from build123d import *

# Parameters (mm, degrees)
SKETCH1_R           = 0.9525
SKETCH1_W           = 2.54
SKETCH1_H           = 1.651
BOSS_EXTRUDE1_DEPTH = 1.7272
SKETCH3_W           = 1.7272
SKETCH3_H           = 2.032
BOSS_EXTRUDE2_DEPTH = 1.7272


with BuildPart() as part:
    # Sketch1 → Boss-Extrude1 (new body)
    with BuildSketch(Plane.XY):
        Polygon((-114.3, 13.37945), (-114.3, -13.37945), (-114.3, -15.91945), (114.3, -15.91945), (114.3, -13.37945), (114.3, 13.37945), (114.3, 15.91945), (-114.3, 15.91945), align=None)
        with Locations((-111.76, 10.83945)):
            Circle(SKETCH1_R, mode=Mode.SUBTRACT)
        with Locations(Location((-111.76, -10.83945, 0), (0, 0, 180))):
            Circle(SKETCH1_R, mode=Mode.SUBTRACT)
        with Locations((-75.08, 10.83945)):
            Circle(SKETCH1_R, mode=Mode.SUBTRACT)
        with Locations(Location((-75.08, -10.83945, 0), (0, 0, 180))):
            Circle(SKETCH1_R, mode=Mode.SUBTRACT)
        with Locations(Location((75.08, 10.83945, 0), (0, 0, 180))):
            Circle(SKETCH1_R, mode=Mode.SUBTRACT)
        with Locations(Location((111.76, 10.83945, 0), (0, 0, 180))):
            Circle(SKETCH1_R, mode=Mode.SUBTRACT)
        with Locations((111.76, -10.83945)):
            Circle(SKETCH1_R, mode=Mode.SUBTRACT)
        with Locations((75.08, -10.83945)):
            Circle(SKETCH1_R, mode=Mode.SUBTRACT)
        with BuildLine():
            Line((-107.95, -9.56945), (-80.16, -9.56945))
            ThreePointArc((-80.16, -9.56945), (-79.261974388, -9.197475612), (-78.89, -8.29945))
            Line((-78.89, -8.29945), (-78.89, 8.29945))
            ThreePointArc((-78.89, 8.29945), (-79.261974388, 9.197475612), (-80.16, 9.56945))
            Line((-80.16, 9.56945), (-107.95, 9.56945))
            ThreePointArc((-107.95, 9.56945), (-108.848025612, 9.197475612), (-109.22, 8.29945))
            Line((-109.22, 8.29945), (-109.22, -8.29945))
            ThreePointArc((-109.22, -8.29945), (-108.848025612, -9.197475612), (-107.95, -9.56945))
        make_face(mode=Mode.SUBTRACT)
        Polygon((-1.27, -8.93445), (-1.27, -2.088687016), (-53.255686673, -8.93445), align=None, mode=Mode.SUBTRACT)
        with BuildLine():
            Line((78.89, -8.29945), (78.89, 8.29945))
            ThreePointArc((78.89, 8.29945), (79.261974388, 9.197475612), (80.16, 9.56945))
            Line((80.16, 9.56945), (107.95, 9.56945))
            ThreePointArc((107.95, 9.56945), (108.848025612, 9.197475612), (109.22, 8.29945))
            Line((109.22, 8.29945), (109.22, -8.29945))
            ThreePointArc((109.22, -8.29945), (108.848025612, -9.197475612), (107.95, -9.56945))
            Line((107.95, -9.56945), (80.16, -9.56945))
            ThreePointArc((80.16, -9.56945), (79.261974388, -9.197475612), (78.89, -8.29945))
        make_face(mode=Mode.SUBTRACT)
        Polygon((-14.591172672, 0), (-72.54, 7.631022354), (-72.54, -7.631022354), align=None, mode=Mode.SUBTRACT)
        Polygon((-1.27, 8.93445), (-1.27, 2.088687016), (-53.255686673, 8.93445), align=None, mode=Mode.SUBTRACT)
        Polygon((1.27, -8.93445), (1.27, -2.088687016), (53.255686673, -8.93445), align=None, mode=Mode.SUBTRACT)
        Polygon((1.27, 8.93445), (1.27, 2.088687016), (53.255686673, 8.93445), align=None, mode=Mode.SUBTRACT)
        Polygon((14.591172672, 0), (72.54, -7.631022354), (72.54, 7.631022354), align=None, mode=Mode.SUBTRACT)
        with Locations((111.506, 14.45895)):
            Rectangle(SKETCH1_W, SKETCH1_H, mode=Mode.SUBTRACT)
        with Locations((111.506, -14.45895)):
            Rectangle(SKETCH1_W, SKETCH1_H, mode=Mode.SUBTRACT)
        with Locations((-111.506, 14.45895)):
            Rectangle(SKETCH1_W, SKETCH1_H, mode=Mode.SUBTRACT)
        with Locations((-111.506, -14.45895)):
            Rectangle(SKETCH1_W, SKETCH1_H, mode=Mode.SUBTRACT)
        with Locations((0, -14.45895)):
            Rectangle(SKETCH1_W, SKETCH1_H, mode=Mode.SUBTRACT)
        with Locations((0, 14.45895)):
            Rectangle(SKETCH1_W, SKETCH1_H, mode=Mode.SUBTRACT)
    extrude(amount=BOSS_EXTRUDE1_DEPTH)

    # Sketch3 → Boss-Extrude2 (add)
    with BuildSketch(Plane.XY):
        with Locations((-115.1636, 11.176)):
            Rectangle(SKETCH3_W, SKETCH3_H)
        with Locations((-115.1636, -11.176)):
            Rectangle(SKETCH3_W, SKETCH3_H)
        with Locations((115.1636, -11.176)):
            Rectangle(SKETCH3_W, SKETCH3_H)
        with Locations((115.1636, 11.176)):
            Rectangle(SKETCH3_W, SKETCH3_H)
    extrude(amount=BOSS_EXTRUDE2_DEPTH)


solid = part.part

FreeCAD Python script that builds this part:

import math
import FreeCAD as App
import Part
import Sketcher

V = App.Vector
Q = App.Units.Quantity

doc = App.newDocument("Part")
params = doc.addObject("Spreadsheet::Sheet", "Params")
for row, (alias, value) in enumerate([
    ("sketch1_width", "9 in"),
    ("sketch1_radius", "0.05 in"),
    ("sketch1_diameter", "0.075 in"),
    ("sketch1_width2", "0.1 in"),
    ("sketch1_height", "0.065 in"),
    ("pad1_length", "0.068 in"),
    ("sketch2_height", "0.08 in"),
    ("sketch2_width", "0.068 in"),
    ("pad2_length", "0.068 in"),
], start=1):
    params.set(f"A{row}", alias)
    params.set(f"B{row}", "=" + value)
    params.setAlias(f"B{row}", alias)

body = doc.addObject("PartDesign::Body", "Body")

sketch1 = doc.addObject("Sketcher::SketchObject", "Sketch")
body.addObject(sketch1)
sketch1.AttachmentSupport = (doc.XY_Plane, [""])
sketch1.MapMode = "FlatFace"
sketch1.addGeometry([
    Part.LineSegment(V(-114.3, -15.9, 0), V(114.3, -15.9, 0)),
    Part.LineSegment(V(114.3, -15.9, 0), V(114.3, 15.9, 0)),
    Part.LineSegment(V(114.3, 15.9, 0), V(-114.3, 15.9, 0)),
    Part.LineSegment(V(-114.3, 15.9, 0), V(-114.3, -15.9, 0)),
    Part.LineSegment(V(-110.2, -15.3, 0), V(-112.8, -15.3, 0)),
    Part.LineSegment(V(-112.8, -15.3, 0), V(-112.8, -13.6, 0)),
    Part.LineSegment(V(-112.8, -13.6, 0), V(-110.2, -13.6, 0)),
    Part.LineSegment(V(-110.2, -13.6, 0), V(-110.2, -15.3, 0)),
    Part.Circle(V(-111.8, -10.8, 0), V(0, 0, 1), 1),
    Part.Circle(V(-75.1, -10.8, 0), V(0, 0, 1), 1),
    Part.LineSegment(V(-1.3, -2.1, 0), V(-1.3, -8.9, 0)),
    Part.LineSegment(V(-1.3, -8.9, 0), V(-53.3, -8.9, 0)),
    Part.LineSegment(V(-53.3, -8.9, 0), V(-1.3, -2.1, 0)),
    Part.LineSegment(V(1.3, -15.3, 0), V(-1.3, -15.3, 0)),
    Part.LineSegment(V(-1.3, -15.3, 0), V(-1.3, -13.6, 0)),
    Part.LineSegment(V(-1.3, -13.6, 0), V(1.3, -13.6, 0)),
    Part.LineSegment(V(1.3, -13.6, 0), V(1.3, -15.3, 0)),
    Part.LineSegment(V(112.8, -15.3, 0), V(110.2, -15.3, 0)),
    Part.LineSegment(V(110.2, -15.3, 0), V(110.2, -13.6, 0)),
    Part.LineSegment(V(110.2, -13.6, 0), V(112.8, -13.6, 0)),
    Part.LineSegment(V(112.8, -13.6, 0), V(112.8, -15.3, 0)),
    Part.Circle(V(75.1, -10.8, 0), V(0, 0, 1), 1),
    Part.Circle(V(111.8, -10.8, 0), V(0, 0, 1), 1),
    Part.LineSegment(V(53.3, -8.9, 0), V(1.3, -8.9, 0)),
    Part.LineSegment(V(1.3, -8.9, 0), V(1.3, -2.1, 0)),
    Part.LineSegment(V(1.3, -2.1, 0), V(53.3, -8.9, 0)),
    Part.LineSegment(V(-80.2, -9.6, 0), V(-108, -9.6, 0)),
    Part.ArcOfCircle(Part.Circle(V(-108, -8.3, 0), V(0, 0, 1), 1.3), math.radians(180), math.radians(270)),
    Part.LineSegment(V(-109.2, -8.3, 0), V(-109.2, 8.3, 0)),
    Part.ArcOfCircle(Part.Circle(V(-108, 8.3, 0), V(0, 0, 1), 1.3), math.radians(90), math.radians(180)),
    Part.LineSegment(V(-108, 9.6, 0), V(-80.2, 9.6, 0)),
    Part.ArcOfCircle(Part.Circle(V(-80.2, 8.3, 0), V(0, 0, 1), 1.3), math.radians(0), math.radians(90)),
    Part.LineSegment(V(-78.9, 8.3, 0), V(-78.9, -8.3, 0)),
    Part.ArcOfCircle(Part.Circle(V(-80.2, -8.3, 0), V(0, 0, 1), 1.3), math.radians(-90), math.radians(0)),
    Part.LineSegment(V(-72.5, 7.6, 0), V(-14.6, 0, 0)),
    Part.LineSegment(V(-14.6, 0, 0), V(-72.5, -7.6, 0)),
    Part.LineSegment(V(-72.5, -7.6, 0), V(-72.5, 7.6, 0)),
    Part.LineSegment(V(-53.3, 8.9, 0), V(-1.3, 8.9, 0)),
    Part.LineSegment(V(-1.3, 8.9, 0), V(-1.3, 2.1, 0)),
    Part.LineSegment(V(-1.3, 2.1, 0), V(-53.3, 8.9, 0)),
    Part.Circle(V(-111.8, 10.8, 0), V(0, 0, 1), 1),
    Part.Circle(V(-75.1, 10.8, 0), V(0, 0, 1), 1),
    Part.LineSegment(V(-110.2, 13.6, 0), V(-112.8, 13.6, 0)),
    Part.LineSegment(V(-112.8, 13.6, 0), V(-112.8, 15.3, 0)),
    Part.LineSegment(V(-112.8, 15.3, 0), V(-110.2, 15.3, 0)),
    Part.LineSegment(V(-110.2, 15.3, 0), V(-110.2, 13.6, 0)),
    Part.LineSegment(V(72.5, -7.6, 0), V(14.6, 0, 0)),
    Part.LineSegment(V(14.6, 0, 0), V(72.5, 7.6, 0)),
    Part.LineSegment(V(72.5, 7.6, 0), V(72.5, -7.6, 0)),
    Part.LineSegment(V(1.3, 2.1, 0), V(1.3, 8.9, 0)),
    Part.LineSegment(V(1.3, 8.9, 0), V(53.3, 8.9, 0)),
    Part.LineSegment(V(53.3, 8.9, 0), V(1.3, 2.1, 0)),
    Part.ArcOfCircle(Part.Circle(V(80.2, -8.3, 0), V(0, 0, 1), 1.3), math.radians(180), math.radians(270)),
    Part.LineSegment(V(78.9, -8.3, 0), V(78.9, 8.3, 0)),
    Part.ArcOfCircle(Part.Circle(V(80.2, 8.3, 0), V(0, 0, 1), 1.3), math.radians(90), math.radians(180)),
    Part.LineSegment(V(80.2, 9.6, 0), V(108, 9.6, 0)),
    Part.ArcOfCircle(Part.Circle(V(108, 8.3, 0), V(0, 0, 1), 1.3), math.radians(0), math.radians(90)),
    Part.LineSegment(V(109.2, 8.3, 0), V(109.2, -8.3, 0)),
    Part.ArcOfCircle(Part.Circle(V(108, -8.3, 0), V(0, 0, 1), 1.3), math.radians(-90), math.radians(0)),
    Part.LineSegment(V(108, -9.6, 0), V(80.2, -9.6, 0)),
    Part.LineSegment(V(1.3, 13.6, 0), V(-1.3, 13.6, 0)),
    Part.LineSegment(V(-1.3, 13.6, 0), V(-1.3, 15.3, 0)),
    Part.LineSegment(V(-1.3, 15.3, 0), V(1.3, 15.3, 0)),
    Part.LineSegment(V(1.3, 15.3, 0), V(1.3, 13.6, 0)),
    Part.Circle(V(75.1, 10.8, 0), V(0, 0, 1), 1),
    Part.Circle(V(111.8, 10.8, 0), V(0, 0, 1), 1),
    Part.LineSegment(V(112.8, 13.6, 0), V(110.2, 13.6, 0)),
    Part.LineSegment(V(110.2, 13.6, 0), V(110.2, 15.3, 0)),
    Part.LineSegment(V(110.2, 15.3, 0), V(112.8, 15.3, 0)),
    Part.LineSegment(V(112.8, 15.3, 0), V(112.8, 13.6, 0)),
], False)
sketch1.addConstraint([
    Sketcher.Constraint("Coincident", 0, 2, 1, 1),
    Sketcher.Constraint("Coincident", 1, 2, 2, 1),
    Sketcher.Constraint("Coincident", 2, 2, 3, 1),
    Sketcher.Constraint("Coincident", 3, 2, 0, 1),
    Sketcher.Constraint("Coincident", 4, 2, 5, 1),
    Sketcher.Constraint("Coincident", 5, 2, 6, 1),
    Sketcher.Constraint("Coincident", 6, 2, 7, 1),
    Sketcher.Constraint("Coincident", 7, 2, 4, 1),
    Sketcher.Constraint("Coincident", 10, 2, 11, 1),
    Sketcher.Constraint("Coincident", 11, 2, 12, 1),
    Sketcher.Constraint("Coincident", 12, 2, 10, 1),
    Sketcher.Constraint("Coincident", 13, 2, 14, 1),
    Sketcher.Constraint("Coincident", 14, 2, 15, 1),
    Sketcher.Constraint("Coincident", 15, 2, 16, 1),
    Sketcher.Constraint("Coincident", 16, 2, 13, 1),
    Sketcher.Constraint("Coincident", 17, 2, 18, 1),
    Sketcher.Constraint("Coincident", 18, 2, 19, 1),
    Sketcher.Constraint("Coincident", 19, 2, 20, 1),
    Sketcher.Constraint("Coincident", 20, 2, 17, 1),
    Sketcher.Constraint("Coincident", 23, 2, 24, 1),
    Sketcher.Constraint("Coincident", 24, 2, 25, 1),
    Sketcher.Constraint("Coincident", 25, 2, 23, 1),
    Sketcher.Constraint("Tangent", 26, 2, 27, 2),
    Sketcher.Constraint("Tangent", 27, 1, 28, 1),
    Sketcher.Constraint("Tangent", 28, 2, 29, 2),
    Sketcher.Constraint("Tangent", 29, 1, 30, 1),
    Sketcher.Constraint("Tangent", 30, 2, 31, 2),
    Sketcher.Constraint("Tangent", 31, 1, 32, 1),
    Sketcher.Constraint("Tangent", 32, 2, 33, 2),
    Sketcher.Constraint("Tangent", 33, 1, 26, 1),
    Sketcher.Constraint("Coincident", 34, 2, 35, 1),
    Sketcher.Constraint("Coincident", 35, 2, 36, 1),
    Sketcher.Constraint("Coincident", 36, 2, 34, 1),
    Sketcher.Constraint("Coincident", 37, 2, 38, 1),
    Sketcher.Constraint("Coincident", 38, 2, 39, 1),
    Sketcher.Constraint("Coincident", 39, 2, 37, 1),
    Sketcher.Constraint("Coincident", 42, 2, 43, 1),
    Sketcher.Constraint("Coincident", 43, 2, 44, 1),
    Sketcher.Constraint("Coincident", 44, 2, 45, 1),
    Sketcher.Constraint("Coincident", 45, 2, 42, 1),
    Sketcher.Constraint("Coincident", 46, 2, 47, 1),
    Sketcher.Constraint("Coincident", 47, 2, 48, 1),
    Sketcher.Constraint("Coincident", 48, 2, 46, 1),
    Sketcher.Constraint("Coincident", 49, 2, 50, 1),
    Sketcher.Constraint("Coincident", 50, 2, 51, 1),
    Sketcher.Constraint("Coincident", 51, 2, 49, 1),
    Sketcher.Constraint("Tangent", 52, 1, 53, 1),
    Sketcher.Constraint("Tangent", 53, 2, 54, 2),
    Sketcher.Constraint("Tangent", 54, 1, 55, 1),
    Sketcher.Constraint("Tangent", 55, 2, 56, 2),
    Sketcher.Constraint("Tangent", 56, 1, 57, 1),
    Sketcher.Constraint("Tangent", 57, 2, 58, 2),
    Sketcher.Constraint("Tangent", 58, 1, 59, 1),
    Sketcher.Constraint("Tangent", 59, 2, 52, 2),
    Sketcher.Constraint("Coincident", 60, 2, 61, 1),
    Sketcher.Constraint("Coincident", 61, 2, 62, 1),
    Sketcher.Constraint("Coincident", 62, 2, 63, 1),
    Sketcher.Constraint("Coincident", 63, 2, 60, 1),
    Sketcher.Constraint("Coincident", 66, 2, 67, 1),
    Sketcher.Constraint("Coincident", 67, 2, 68, 1),
    Sketcher.Constraint("Coincident", 68, 2, 69, 1),
    Sketcher.Constraint("Coincident", 69, 2, 66, 1),
    Sketcher.Constraint("Horizontal", 0),
    Sketcher.Constraint("Vertical", 1),
    Sketcher.Constraint("Horizontal", 2),
    Sketcher.Constraint("Vertical", 3),
    Sketcher.Constraint("Horizontal", 4),
    Sketcher.Constraint("Vertical", 5),
    Sketcher.Constraint("Horizontal", 6),
    Sketcher.Constraint("Vertical", 7),
    Sketcher.Constraint("Vertical", 10),
    Sketcher.Constraint("Horizontal", 11),
    Sketcher.Constraint("Horizontal", 13),
    Sketcher.Constraint("Vertical", 14),
    Sketcher.Constraint("Horizontal", 15),
    Sketcher.Constraint("Vertical", 16),
    Sketcher.Constraint("Horizontal", 17),
    Sketcher.Constraint("Vertical", 18),
    Sketcher.Constraint("Horizontal", 19),
    Sketcher.Constraint("Vertical", 20),
    Sketcher.Constraint("Horizontal", 23),
    Sketcher.Constraint("Vertical", 24),
    Sketcher.Constraint("Horizontal", 26),
    Sketcher.Constraint("Vertical", 28),
    Sketcher.Constraint("Horizontal", 30),
    Sketcher.Constraint("Vertical", 32),
    Sketcher.Constraint("Vertical", 36),
    Sketcher.Constraint("Horizontal", 37),
    Sketcher.Constraint("Vertical", 38),
    Sketcher.Constraint("Horizontal", 42),
    Sketcher.Constraint("Vertical", 43),
    Sketcher.Constraint("Horizontal", 44),
    Sketcher.Constraint("Vertical", 45),
    Sketcher.Constraint("Vertical", 48),
    Sketcher.Constraint("Vertical", 49),
    Sketcher.Constraint("Horizontal", 50),
    Sketcher.Constraint("Vertical", 53),
    Sketcher.Constraint("Horizontal", 55),
    Sketcher.Constraint("Vertical", 57),
    Sketcher.Constraint("Horizontal", 59),
    Sketcher.Constraint("Horizontal", 60),
    Sketcher.Constraint("Vertical", 61),
    Sketcher.Constraint("Horizontal", 62),
    Sketcher.Constraint("Vertical", 63),
    Sketcher.Constraint("Horizontal", 66),
    Sketcher.Constraint("Vertical", 67),
    Sketcher.Constraint("Horizontal", 68),
    Sketcher.Constraint("Vertical", 69),
    Sketcher.Constraint("Equal", 8, 9),
    Sketcher.Constraint("Equal", 9, 21),
    Sketcher.Constraint("Equal", 21, 22),
    Sketcher.Constraint("Equal", 27, 29),
    Sketcher.Constraint("Equal", 29, 31),
    Sketcher.Constraint("Equal", 31, 33),
    Sketcher.Constraint("Equal", 22, 40),
    Sketcher.Constraint("Equal", 40, 41),
    Sketcher.Constraint("Equal", 33, 52),
    Sketcher.Constraint("Equal", 52, 54),
    Sketcher.Constraint("Equal", 54, 56),
    Sketcher.Constraint("Equal", 56, 58),
    Sketcher.Constraint("Equal", 41, 64),
    Sketcher.Constraint("Equal", 64, 65),
    Sketcher.Constraint("Symmetric", 22, 3, 40, 3, -1, 1),
    Sketcher.Constraint("Symmetric", 21, 3, 41, 3, -1, 1),
    Sketcher.Constraint("Symmetric", 31, 3, 52, 3, -1, 1),
    Sketcher.Constraint("Symmetric", 27, 3, 56, 3, -1, 1),
    Sketcher.Constraint("Symmetric", 9, 3, 64, 3, -1, 1),
    Sketcher.Constraint("Symmetric", 8, 3, 65, 3, -1, 1),
    Sketcher.Constraint("Symmetric", 0, 2, 2, 2, -1, 1),
    Sketcher.Constraint("Symmetric", 23, 2, 37, 2, -1, 1),
    Sketcher.Constraint("Symmetric", 19, 2, 42, 2, -1, 1),
    Sketcher.Constraint("Symmetric", 17, 2, 44, 2, -1, 1),
    Sketcher.Constraint("Symmetric", 34, 2, 46, 2, -1, 1),
    Sketcher.Constraint("Symmetric", 35, 2, 47, 2, -1, 1),
    Sketcher.Constraint("Symmetric", 10, 2, 49, 2, -1, 1),
    Sketcher.Constraint("Symmetric", 15, 2, 60, 2, -1, 1),
    Sketcher.Constraint("Symmetric", 13, 2, 62, 2, -1, 1),
    Sketcher.Constraint("Symmetric", 6, 2, 66, 2, -1, 1),
    Sketcher.Constraint("Symmetric", 4, 2, 68, 2, -1, 1),
    Sketcher.Constraint("Symmetric", 9, 3, 21, 3, -2),
    Sketcher.Constraint("Symmetric", 8, 3, 22, 3, -2),
    Sketcher.Constraint("Symmetric", 7, 2, 17, 2, -2),
    Sketcher.Constraint("Symmetric", 5, 2, 19, 2, -2),
    Sketcher.Constraint("Symmetric", 10, 2, 23, 2, -2),
    Sketcher.Constraint("PointOnObject", 34, 2, -1),
    Sketcher.Constraint("Parallel", 25, 34),
    Sketcher.Constraint("Parallel", 12, 35),
    Sketcher.Constraint("Parallel", 34, 39),
    Sketcher.Constraint("Parallel", 39, 46),
    Sketcher.Constraint("Parallel", 47, 51),
    Sketcher.Constraint("Horizontal", 8, 3, 9, 3),
    Sketcher.Constraint("Horizontal", 33, 3, 52, 3),
    Sketcher.Constraint("Horizontal", 7, 2, 13, 2),
    Sketcher.Constraint("Horizontal", 6, 2, 14, 2),
    Sketcher.Constraint("Horizontal", 12, 2, 24, 2),
    Sketcher.Constraint("Horizontal", 36, 2, 47, 2),
    Sketcher.Constraint("Horizontal", 38, 2, 51, 2),
    Sketcher.Constraint("Vertical", 12, 2, 13, 2),
    Sketcher.Constraint("Vertical", 16, 2, 23, 2),
    Sketcher.Constraint("Vertical", 11, 2, 39, 2),
    Sketcher.Constraint("Equal", 6, 13),
    Sketcher.Constraint("DistanceX", 0, 1, 0, 2, Q("9 in")),
    Sketcher.Constraint("Radius", 27, Q("0.05 in")),
    Sketcher.Constraint("Diameter", 8, Q("0.075 in")),
    Sketcher.Constraint("DistanceX", 4, 2, 4, 1, Q("0.1 in")),
    Sketcher.Constraint("DistanceX", 8, 3, -1, 1, Q("4.4 in")),
    Sketcher.Constraint("DistanceX", 27, 1, -1, 1, Q("4.3 in")),
    Sketcher.Constraint("DistanceY", 5, 1, 5, 2, Q("0.065 in")),
    Sketcher.Constraint("DistanceX", 4, 2, -1, 1, Q("4.44 in")),
    Sketcher.Constraint("DistanceY", 1, 1, 1, 2, Q("1.2535 in")),
    Sketcher.Constraint("DistanceY", 28, 1, 28, 2, Q("0.6535 in")),
    Sketcher.Constraint("DistanceX", 26, 2, 26, 1, 27.79),
    Sketcher.Constraint("DistanceX", 9, 3, -1, 1, 75.08),
    Sketcher.Constraint("DistanceX", 35, 2, -1, 1, 72.54),
    Sketcher.Constraint("DistanceX", 11, 2, 11, 1, 51.985687),
    Sketcher.Constraint("DistanceY", 10, 2, 10, 1, 6.845763),
    Sketcher.Constraint("DistanceY", 36, 1, 36, 2, 15.262045),
    Sketcher.Constraint("DistanceY", 8, 3, -1, 1, 10.83945),
    Sketcher.Constraint("DistanceY", 4, 2, -1, 1, 15.28445),
    Sketcher.Constraint("DistanceY", 10, 2, -1, 1, 8.93445),
])
sketch1.setExpression("Constraints[161]", "Params.sketch1_width")
sketch1.setExpression("Constraints[162]", "Params.sketch1_radius")
sketch1.setExpression("Constraints[163]", "Params.sketch1_diameter")
sketch1.setExpression("Constraints[164]", "Params.sketch1_width2")
sketch1.setExpression("Constraints[167]", "Params.sketch1_height")
pad1 = doc.addObject("PartDesign::Pad", "Pad")
body.addObject(pad1)
pad1.Profile = sketch1
pad1.setExpression("Length", "Params.pad1_length")

sketch2 = doc.addObject("Sketcher::SketchObject", "Sketch001")
body.addObject(sketch2)
sketch2.AttachmentSupport = (doc.XY_Plane, [""])
sketch2.MapMode = "FlatFace"
sketch2.addGeometry([
    Part.LineSegment(V(-116, 12.2, 0), V(-116, 10.2, 0)),
    Part.LineSegment(V(-116, 10.2, 0), V(-114.3, 10.2, 0)),
    Part.LineSegment(V(-114.3, 10.2, 0), V(-114.3, 12.2, 0)),
    Part.LineSegment(V(-114.3, 12.2, 0), V(-116, 12.2, 0)),
    Part.LineSegment(V(-116, -10.2, 0), V(-116, -12.2, 0)),
    Part.LineSegment(V(-116, -12.2, 0), V(-114.3, -12.2, 0)),
    Part.LineSegment(V(-114.3, -12.2, 0), V(-114.3, -10.2, 0)),
    Part.LineSegment(V(-114.3, -10.2, 0), V(-116, -10.2, 0)),
    Part.LineSegment(V(114.3, -10.2, 0), V(114.3, -12.2, 0)),
    Part.LineSegment(V(114.3, -12.2, 0), V(116, -12.2, 0)),
    Part.LineSegment(V(116, -12.2, 0), V(116, -10.2, 0)),
    Part.LineSegment(V(116, -10.2, 0), V(114.3, -10.2, 0)),
    Part.LineSegment(V(114.3, 12.2, 0), V(114.3, 10.2, 0)),
    Part.LineSegment(V(114.3, 10.2, 0), V(116, 10.2, 0)),
    Part.LineSegment(V(116, 10.2, 0), V(116, 12.2, 0)),
    Part.LineSegment(V(116, 12.2, 0), V(114.3, 12.2, 0)),
], False)
sketch2.addConstraint([
    Sketcher.Constraint("Coincident", 0, 2, 1, 1),
    Sketcher.Constraint("Coincident", 1, 2, 2, 1),
    Sketcher.Constraint("Coincident", 2, 2, 3, 1),
    Sketcher.Constraint("Coincident", 3, 2, 0, 1),
    Sketcher.Constraint("Coincident", 4, 2, 5, 1),
    Sketcher.Constraint("Coincident", 5, 2, 6, 1),
    Sketcher.Constraint("Coincident", 6, 2, 7, 1),
    Sketcher.Constraint("Coincident", 7, 2, 4, 1),
    Sketcher.Constraint("Coincident", 8, 2, 9, 1),
    Sketcher.Constraint("Coincident", 9, 2, 10, 1),
    Sketcher.Constraint("Coincident", 10, 2, 11, 1),
    Sketcher.Constraint("Coincident", 11, 2, 8, 1),
    Sketcher.Constraint("Coincident", 12, 2, 13, 1),
    Sketcher.Constraint("Coincident", 13, 2, 14, 1),
    Sketcher.Constraint("Coincident", 14, 2, 15, 1),
    Sketcher.Constraint("Coincident", 15, 2, 12, 1),
    Sketcher.Constraint("Vertical", 0),
    Sketcher.Constraint("Horizontal", 1),
    Sketcher.Constraint("Vertical", 2),
    Sketcher.Constraint("Horizontal", 3),
    Sketcher.Constraint("Vertical", 4),
    Sketcher.Constraint("Horizontal", 5),
    Sketcher.Constraint("Vertical", 6),
    Sketcher.Constraint("Horizontal", 7),
    Sketcher.Constraint("Vertical", 8),
    Sketcher.Constraint("Horizontal", 9),
    Sketcher.Constraint("Vertical", 10),
    Sketcher.Constraint("Horizontal", 11),
    Sketcher.Constraint("Vertical", 12),
    Sketcher.Constraint("Horizontal", 13),
    Sketcher.Constraint("Vertical", 14),
    Sketcher.Constraint("Horizontal", 15),
    Sketcher.Constraint("Symmetric", 2, 2, 8, 2, -1, 1),
    Sketcher.Constraint("Symmetric", 0, 2, 10, 2, -1, 1),
    Sketcher.Constraint("Symmetric", 6, 2, 12, 2, -1, 1),
    Sketcher.Constraint("Symmetric", 4, 2, 14, 2, -1, 1),
    Sketcher.Constraint("Symmetric", 5, 2, 8, 2, -2),
    Sketcher.Constraint("Symmetric", 7, 2, 10, 2, -2),
    Sketcher.Constraint("DistanceX", 5, 2, 8, 2, Q("9 in")),
    Sketcher.Constraint("DistanceY", 0, 2, 0, 1, Q("0.08 in")),
    Sketcher.Constraint("DistanceY", -1, 1, 0, 2, Q("0.4 in")),
    Sketcher.Constraint("DistanceX", 1, 1, 1, 2, Q("0.068 in")),
])
sketch2.setExpression("Constraints[39]", "Params.sketch2_height")
sketch2.setExpression("Constraints[41]", "Params.sketch2_width")
pad2 = doc.addObject("PartDesign::Pad", "Pad001")
body.addObject(pad2)
pad2.Profile = sketch2
pad2.setExpression("Length", "Params.pad2_length")

doc.recompute()
